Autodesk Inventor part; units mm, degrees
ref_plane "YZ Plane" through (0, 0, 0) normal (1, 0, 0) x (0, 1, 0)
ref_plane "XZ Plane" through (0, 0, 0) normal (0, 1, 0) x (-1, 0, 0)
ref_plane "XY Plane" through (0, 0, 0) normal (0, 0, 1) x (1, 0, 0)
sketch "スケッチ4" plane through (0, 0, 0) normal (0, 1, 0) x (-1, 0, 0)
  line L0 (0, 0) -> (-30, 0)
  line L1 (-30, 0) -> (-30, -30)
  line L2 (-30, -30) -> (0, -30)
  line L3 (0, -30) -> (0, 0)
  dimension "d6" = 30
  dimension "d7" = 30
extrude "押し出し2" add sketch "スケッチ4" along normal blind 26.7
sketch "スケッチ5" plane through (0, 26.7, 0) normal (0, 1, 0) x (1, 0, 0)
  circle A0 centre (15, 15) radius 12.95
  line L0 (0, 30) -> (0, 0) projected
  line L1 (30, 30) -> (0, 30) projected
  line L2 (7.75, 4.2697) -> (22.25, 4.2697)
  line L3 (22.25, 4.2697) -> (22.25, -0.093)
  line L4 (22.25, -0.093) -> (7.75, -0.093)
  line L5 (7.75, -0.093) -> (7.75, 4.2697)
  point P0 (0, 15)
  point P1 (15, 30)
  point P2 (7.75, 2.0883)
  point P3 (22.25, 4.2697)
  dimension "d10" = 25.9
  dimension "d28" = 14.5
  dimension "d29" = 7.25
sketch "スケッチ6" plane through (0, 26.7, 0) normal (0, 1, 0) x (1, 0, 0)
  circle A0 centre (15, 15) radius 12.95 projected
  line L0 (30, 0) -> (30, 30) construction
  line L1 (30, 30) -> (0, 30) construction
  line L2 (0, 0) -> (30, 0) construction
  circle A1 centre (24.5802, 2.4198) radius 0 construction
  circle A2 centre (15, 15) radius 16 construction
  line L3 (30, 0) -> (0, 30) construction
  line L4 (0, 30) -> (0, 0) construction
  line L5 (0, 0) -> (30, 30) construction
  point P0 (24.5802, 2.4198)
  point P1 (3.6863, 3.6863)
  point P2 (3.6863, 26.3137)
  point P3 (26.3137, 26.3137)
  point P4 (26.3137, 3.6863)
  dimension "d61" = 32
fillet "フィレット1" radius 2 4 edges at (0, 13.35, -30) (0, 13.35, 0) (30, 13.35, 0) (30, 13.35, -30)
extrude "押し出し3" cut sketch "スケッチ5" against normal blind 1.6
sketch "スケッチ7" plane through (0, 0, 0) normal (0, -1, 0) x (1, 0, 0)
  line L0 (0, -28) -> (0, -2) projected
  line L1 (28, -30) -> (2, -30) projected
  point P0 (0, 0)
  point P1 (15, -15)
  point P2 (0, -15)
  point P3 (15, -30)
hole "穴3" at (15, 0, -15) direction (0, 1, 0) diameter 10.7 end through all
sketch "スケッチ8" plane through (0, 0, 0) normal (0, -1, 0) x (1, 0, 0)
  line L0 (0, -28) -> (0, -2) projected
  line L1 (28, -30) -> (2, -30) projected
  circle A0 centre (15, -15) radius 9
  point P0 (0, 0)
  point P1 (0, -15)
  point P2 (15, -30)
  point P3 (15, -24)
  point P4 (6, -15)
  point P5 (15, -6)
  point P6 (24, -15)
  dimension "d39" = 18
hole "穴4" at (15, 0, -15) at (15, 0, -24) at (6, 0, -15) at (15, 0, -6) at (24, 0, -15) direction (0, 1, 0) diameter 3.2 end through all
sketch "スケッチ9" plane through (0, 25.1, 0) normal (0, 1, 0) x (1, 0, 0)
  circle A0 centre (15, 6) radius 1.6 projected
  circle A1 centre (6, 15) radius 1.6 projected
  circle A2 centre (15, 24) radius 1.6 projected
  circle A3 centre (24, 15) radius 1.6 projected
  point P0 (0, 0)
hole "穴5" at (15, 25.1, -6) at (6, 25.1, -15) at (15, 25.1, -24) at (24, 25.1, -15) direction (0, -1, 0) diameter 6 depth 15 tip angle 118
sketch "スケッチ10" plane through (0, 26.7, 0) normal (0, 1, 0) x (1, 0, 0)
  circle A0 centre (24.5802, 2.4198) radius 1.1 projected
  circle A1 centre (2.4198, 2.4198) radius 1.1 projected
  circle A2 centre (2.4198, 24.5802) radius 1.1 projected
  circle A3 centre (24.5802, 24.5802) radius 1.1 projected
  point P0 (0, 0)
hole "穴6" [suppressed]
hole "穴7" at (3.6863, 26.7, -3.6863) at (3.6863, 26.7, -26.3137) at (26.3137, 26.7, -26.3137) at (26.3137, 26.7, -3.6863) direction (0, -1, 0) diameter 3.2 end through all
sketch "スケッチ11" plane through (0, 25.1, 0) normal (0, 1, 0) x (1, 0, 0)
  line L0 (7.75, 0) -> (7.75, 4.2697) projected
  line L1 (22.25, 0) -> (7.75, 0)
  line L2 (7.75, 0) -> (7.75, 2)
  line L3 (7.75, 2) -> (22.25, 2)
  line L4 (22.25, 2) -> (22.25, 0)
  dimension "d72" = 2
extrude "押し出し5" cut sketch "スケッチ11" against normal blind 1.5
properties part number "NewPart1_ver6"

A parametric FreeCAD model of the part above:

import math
import FreeCAD as App
import Part
import Sketcher

V = App.Vector
Q = App.Units.Quantity


def edges_at(feature, points):
    """Names of the edges that pass closest to the given points."""
    edges = feature.Shape.Edges
    near = lambda p: min(range(len(edges)), key=lambda i: edges[i].distToShape(Part.Vertex(*p))[0])
    return sorted({f"Edge{near(p) + 1}" for p in points})

doc = App.newDocument("Part")
params = doc.addObject("Spreadsheet::Sheet", "Params")
for row, (alias, value) in enumerate([
    ("sketch1_width", "30 mm"),
    ("pad1_length", "26.7 mm"),
    ("fillet_radius", "2 mm"),
    ("sketch2_radius", "12.95 mm"),
    ("sketch2_width", "14.5 mm"),
    ("pocket1_length", "1.6 mm"),
    ("sketch3_diameter", "10.7 mm"),
    ("hole_diameter", "10.7 mm"),
    ("sketch4_diameter", "3.2 mm"),
    ("hole2_diameter", "3.2 mm"),
    ("sketch5_diameter", "6 mm"),
    ("hole3_diameter", "6 mm"),
    ("hole3_depth", "15 mm"),
    ("sketch6_diameter", "3.2 mm"),
    ("hole4_diameter", "3.2 mm"),
    ("sketch7_height", "2 mm"),
    ("sketch7_width", "14.5 mm"),
    ("pocket2_length", "1.5 mm"),
], start=1):
    params.set(f"A{row}", alias)
    params.set(f"B{row}", "=" + value)
    params.setAlias(f"B{row}", alias)

body = doc.addObject("PartDesign::Body", "Body")

# Sketch on XZ plane
sketch1 = doc.addObject("Sketcher::SketchObject", "Sketch")
body.addObject(sketch1)
sketch1.AttachmentSupport = (doc.XZ_Plane, [""])
sketch1.MapMode = "FlatFace"
sketch1.addGeometry(Part.LineSegment(V(0, -30, 0), V(0, 0, 0)), False)
sketch1.addGeometry(Part.LineSegment(V(0, 0, 0), V(30, 0, 0)), False)
sketch1.addGeometry(Part.LineSegment(V(30, 0, 0), V(30, -30, 0)), False)
sketch1.addGeometry(Part.LineSegment(V(30, -30, 0), V(0, -30, 0)), False)
sketch1.addConstraint(Sketcher.Constraint("Coincident", 0, 2, 1, 1))
sketch1.addConstraint(Sketcher.Constraint("Coincident", 1, 2, 2, 1))
sketch1.addConstraint(Sketcher.Constraint("Coincident", 2, 2, 3, 1))
sketch1.addConstraint(Sketcher.Constraint("Coincident", 3, 2, 0, 1))
sketch1.addConstraint(Sketcher.Constraint("Vertical", 0))
sketch1.addConstraint(Sketcher.Constraint("Horizontal", 1))
sketch1.addConstraint(Sketcher.Constraint("Vertical", 2))
sketch1.addConstraint(Sketcher.Constraint("Horizontal", 3))
sketch1.addConstraint(Sketcher.Constraint("Coincident", 0, 2, -1, 1))
sketch1.addConstraint(Sketcher.Constraint("Equal", 3, 0))
sketch1.addConstraint(Sketcher.Constraint("DistanceX", 1, 1, 1, 2, Q("30 mm")))
sketch1.setExpression("Constraints[10]", "Params.sketch1_width")
pad1 = doc.addObject("PartDesign::Pad", "Pad")
body.addObject(pad1)
pad1.Profile = sketch1
pad1.setExpression("Length", "Params.pad1_length")
pad1.Reversed = True
doc.recompute()

fillet = doc.addObject("PartDesign::Fillet", "Fillet")
body.addObject(fillet)
fillet.Base = (pad1, edges_at(pad1, [
    (0, 13.35, -30),
    (0, 13.35, 0),
    (30, 13.35, 0),
    (30, 13.35, -30),
]))
fillet.setExpression("Radius", "Params.fillet_radius")

# Sketch on XZ plane
sketch2 = doc.addObject("Sketcher::SketchObject", "Sketch001")
body.addObject(sketch2)
sketch2.AttachmentSupport = (doc.XZ_Plane, [""])
sketch2.MapMode = "FlatFace"
sketch2.AttachmentOffset = App.Placement(V(0, 0, -26.7), App.Rotation())
sketch2.addGeometry(Part.ArcOfCircle(Part.Circle(V(15, -15, 0), V(0, 0, 1), 12.9), math.radians(124), math.radians(416)), False)
sketch2.addGeometry(Part.LineSegment(V(7.8, -4.3, 0), V(7.8, 0.1, 0)), False)
sketch2.addGeometry(Part.LineSegment(V(7.8, 0.1, 0), V(22.2, 0.1, 0)), False)
sketch2.addGeometry(Part.LineSegment(V(22.2, 0.1, 0), V(22.2, -4.3, 0)), False)
sketch2.addConstraint(Sketcher.Constraint("Coincident", 0, 1, 1, 1))
sketch2.addConstraint(Sketcher.Constraint("Coincident", 1, 2, 2, 1))
sketch2.addConstraint(Sketcher.Constraint("Coincident", 2, 2, 3, 1))
sketch2.addConstraint(Sketcher.Constraint("Coincident", 3, 2, 0, 2))
sketch2.addConstraint(Sketcher.Constraint("Vertical", 1))
sketch2.addConstraint(Sketcher.Constraint("Horizontal", 2))
sketch2.addConstraint(Sketcher.Constraint("Vertical", 3))
sketch2.addConstraint(Sketcher.Constraint("Horizontal", 0, 1, 3, 2))
sketch2.addConstraint(Sketcher.Constraint("Radius", 0, Q("12.95 mm")))
sketch2.addConstraint(Sketcher.Constraint("DistanceX", 2, 1, 2, 2, Q("14.5 mm")))
sketch2.addConstraint(Sketcher.Constraint("DistanceX", -1, 1, 0, 3, Q("15 mm")))
sketch2.addConstraint(Sketcher.Constraint("DistanceY", 0, 3, -1, 1, Q("15 mm")))
sketch2.addConstraint(Sketcher.Constraint("DistanceY", 1, 1, 1, 2, Q("4.3627 mm")))
sketch2.setExpression("Constraints[8]", "Params.sketch2_radius")
sketch2.setExpression("Constraints[9]", "Params.sketch2_width")
pocket1 = doc.addObject("PartDesign::Pocket", "Pocket")
body.addObject(pocket1)
pocket1.Profile = sketch2
pocket1.setExpression("Length", "Params.pocket1_length")
pocket1.Reversed = True

# Sketch on XZ plane
sketch3 = doc.addObject("Sketcher::SketchObject", "Sketch002")
body.addObject(sketch3)
sketch3.AttachmentSupport = (doc.XZ_Plane, [""])
sketch3.MapMode = "FlatFace"
sketch3.addGeometry(Part.Circle(V(15, -15, 0), V(0, 0, 1), 5), False)
sketch3.addConstraint(Sketcher.Constraint("Diameter", 0, Q("10.7 mm")))
sketch3.addConstraint(Sketcher.Constraint("DistanceX", -1, 1, 0, 3, Q("15 mm")))
sketch3.addConstraint(Sketcher.Constraint("DistanceY", 0, 3, -1, 1, Q("15 mm")))
sketch3.setExpression("Constraints[0]", "Params.sketch3_diameter")
doc.recompute()
hole = doc.addObject("PartDesign::Hole", "Hole")
body.addObject(hole)
hole.Profile = sketch3
hole.ThreadType = "None"
hole.setExpression("Diameter", "Params.hole_diameter")
hole.DepthType = "ThroughAll"

# Sketch on XZ plane
sketch4 = doc.addObject("Sketcher::SketchObject", "Sketch003")
body.addObject(sketch4)
sketch4.AttachmentSupport = (doc.XZ_Plane, [""])
sketch4.MapMode = "FlatFace"
sketch4.addGeometry(Part.Circle(V(15, -15, 0), V(0, 0, 1), 1.6), False)
sketch4.addGeometry(Part.Circle(V(15, -24, 0), V(0, 0, 1), 1.6), False)
sketch4.addGeometry(Part.Circle(V(6, -15, 0), V(0, 0, 1), 1.6), False)
sketch4.addGeometry(Part.Circle(V(15, -6, 0), V(0, 0, 1), 1.6), False)
sketch4.addGeometry(Part.Circle(V(24, -15, 0), V(0, 0, 1), 1.6), False)
sketch4.addConstraint(Sketcher.Constraint("Equal", 0, 1))
sketch4.addConstraint(Sketcher.Constraint("Equal", 1, 2))
sketch4.addConstraint(Sketcher.Constraint("Equal", 2, 3))
sketch4.addConstraint(Sketcher.Constraint("Equal", 3, 4))
sketch4.addConstraint(Sketcher.Constraint("Horizontal", 0, 3, 2, 3))
sketch4.addConstraint(Sketcher.Constraint("Horizontal", 2, 3, 4, 3))
sketch4.addConstraint(Sketcher.Constraint("Vertical", 0, 3, 1, 3))
sketch4.addConstraint(Sketcher.Constraint("Vertical", 1, 3, 3, 3))
sketch4.addConstraint(Sketcher.Constraint("Diameter", 0, Q("3.2 mm")))
sketch4.addConstraint(Sketcher.Constraint("DistanceX", -1, 1, 0, 3, Q("15 mm")))
sketch4.addConstraint(Sketcher.Constraint("DistanceY", 0, 3, -1, 1, Q("15 mm")))
sketch4.addConstraint(Sketcher.Constraint("DistanceY", 1, 3, -1, 1, Q("24 mm")))
sketch4.addConstraint(Sketcher.Constraint("DistanceX", -1, 1, 2, 3, Q("6 mm")))
sketch4.addConstraint(Sketcher.Constraint("DistanceY", 3, 3, -1, 1, Q("6 mm")))
sketch4.addConstraint(Sketcher.Constraint("DistanceX", -1, 1, 4, 3, Q("24 mm")))
sketch4.setExpression("Constraints[8]", "Params.sketch4_diameter")
doc.recompute()
hole2 = doc.addObject("PartDesign::Hole", "Hole001")
body.addObject(hole2)
hole2.Profile = sketch4
hole2.ThreadType = "None"
hole2.setExpression("Diameter", "Params.hole2_diameter")
hole2.DepthType = "ThroughAll"

# Sketch on XZ plane
sketch5 = doc.addObject("Sketcher::SketchObject", "Sketch004")
body.addObject(sketch5)
sketch5.AttachmentSupport = (doc.XZ_Plane, [""])
sketch5.MapMode = "FlatFace"
sketch5.AttachmentOffset = App.Placement(V(0, 0, -25.1), App.Rotation())
sketch5.addGeometry(Part.Circle(V(15, -6, 0), V(0, 0, 1), 3), False)
sketch5.addGeometry(Part.Circle(V(6, -15, 0), V(0, 0, 1), 3), False)
sketch5.addGeometry(Part.Circle(V(15, -24, 0), V(0, 0, 1), 3), False)
sketch5.addGeometry(Part.Circle(V(24, -15, 0), V(0, 0, 1), 3), False)
sketch5.addConstraint(Sketcher.Constraint("Equal", 0, 1))
sketch5.addConstraint(Sketcher.Constraint("Equal", 1, 2))
sketch5.addConstraint(Sketcher.Constraint("Equal", 2, 3))
sketch5.addConstraint(Sketcher.Constraint("Horizontal", 1, 3, 3, 3))
sketch5.addConstraint(Sketcher.Constraint("Vertical", 0, 3, 2, 3))
sketch5.addConstraint(Sketcher.Constraint("Diameter", 0, Q("6 mm")))
sketch5.addConstraint(Sketcher.Constraint("DistanceX", -1, 1, 0, 3, Q("15 mm")))
sketch5.addConstraint(Sketcher.Constraint("DistanceY", 0, 3, -1, 1, Q("6 mm")))
sketch5.addConstraint(Sketcher.Constraint("DistanceX", -1, 1, 1, 3, Q("6 mm")))
sketch5.addConstraint(Sketcher.Constraint("DistanceY", 1, 3, -1, 1, Q("15 mm")))
sketch5.addConstraint(Sketcher.Constraint("DistanceY", 2, 3, -1, 1, Q("24 mm")))
sketch5.addConstraint(Sketcher.Constraint("DistanceX", -1, 1, 3, 3, Q("24 mm")))
sketch5.setExpression("Constraints[5]", "Params.sketch5_diameter")
doc.recompute()
hole3 = doc.addObject("PartDesign::Hole", "Hole002")
body.addObject(hole3)
hole3.Profile = sketch5
hole3.ThreadType = "None"
hole3.setExpression("Diameter", "Params.hole3_diameter")
hole3.DepthType = "Dimension"
hole3.setExpression("Depth", "Params.hole3_depth")
hole3.DrillPoint = "Angled"
hole3.DrillPointAngle = 118
hole3.Reversed = True

# Sketch on XZ plane
sketch6 = doc.addObject("Sketcher::SketchObject", "Sketch005")
body.addObject(sketch6)
sketch6.AttachmentSupport = (doc.XZ_Plane, [""])
sketch6.MapMode = "FlatFace"
sketch6.AttachmentOffset = App.Placement(V(0, 0, -26.7), App.Rotation())
sketch6.addGeometry(Part.Circle(V(3.7, -3.7, 0), V(0, 0, 1), 1.6), False)
sketch6.addGeometry(Part.Circle(V(3.7, -26.3, 0), V(0, 0, 1), 1.6), False)
sketch6.addGeometry(Part.Circle(V(26.3, -26.3, 0), V(0, 0, 1), 1.6), False)
sketch6.addGeometry(Part.Circle(V(26.3, -3.7, 0), V(0, 0, 1), 1.6), False)
sketch6.addConstraint(Sketcher.Constraint("Equal", 0, 1))
sketch6.addConstraint(Sketcher.Constraint("Equal", 1, 2))
sketch6.addConstraint(Sketcher.Constraint("Equal", 2, 3))
sketch6.addConstraint(Sketcher.Constraint("Horizontal", 1, 3, 2, 3))
sketch6.addConstraint(Sketcher.Constraint("Horizontal", 0, 3, 3, 3))
sketch6.addConstraint(Sketcher.Constraint("Vertical", 0, 3, 1, 3))
sketch6.addConstraint(Sketcher.Constraint("Vertical", 2, 3, 3, 3))
sketch6.addConstraint(Sketcher.Constraint("Diameter", 0, Q("3.2 mm")))
sketch6.addConstraint(Sketcher.Constraint("DistanceX", -1, 1, 0, 3, Q("3.6863 mm")))
sketch6.addConstraint(Sketcher.Constraint("DistanceY", 0, 3, -1, 1, Q("3.6863 mm")))
sketch6.addConstraint(Sketcher.Constraint("DistanceY", 1, 3, -1, 1, Q("26.3137 mm")))
sketch6.addConstraint(Sketcher.Constraint("DistanceX", -1, 1, 2, 3, Q("26.3137 mm")))
sketch6.setExpression("Constraints[7]", "Params.sketch6_diameter")
doc.recompute()
hole4 = doc.addObject("PartDesign::Hole", "Hole003")
body.addObject(hole4)
hole4.Profile = sketch6
hole4.ThreadType = "None"
hole4.setExpression("Diameter", "Params.hole4_diameter")
hole4.DepthType = "ThroughAll"
hole4.Reversed = True

# Sketch on XZ plane
sketch7 = doc.addObject("Sketcher::SketchObject", "Sketch006")
body.addObject(sketch7)
sketch7.AttachmentSupport = (doc.XZ_Plane, [""])
sketch7.MapMode = "FlatFace"
sketch7.AttachmentOffset = App.Placement(V(0, 0, -25.1), App.Rotation())
sketch7.addGeometry(Part.LineSegment(V(7.8, -2, 0), V(7.8, 0, 0)), False)
sketch7.addGeometry(Part.LineSegment(V(7.8, 0, 0), V(22.2, 0, 0)), False)
sketch7.addGeometry(Part.LineSegment(V(22.2, 0, 0), V(22.2, -2, 0)), False)
sketch7.addGeometry(Part.LineSegment(V(22.2, -2, 0), V(7.8, -2, 0)), False)
sketch7.addConstraint(Sketcher.Constraint("Coincident", 0, 2, 1, 1))
sketch7.addConstraint(Sketcher.Constraint("Coincident", 1, 2, 2, 1))
sketch7.addConstraint(Sketcher.Constraint("Coincident", 2, 2, 3, 1))
sketch7.addConstraint(Sketcher.Constraint("Coincident", 3, 2, 0, 1))
sketch7.addConstraint(Sketcher.Constraint("Vertical", 0))
sketch7.addConstraint(Sketcher.Constraint("Horizontal", 1))
sketch7.addConstraint(Sketcher.Constraint("Vertical", 2))
sketch7.addConstraint(Sketcher.Constraint("Horizontal", 3))
sketch7.addConstraint(Sketcher.Constraint("PointOnObject", 0, 2, -1))
sketch7.addConstraint(Sketcher.Constraint("DistanceY", 0, 1, 0, 2, Q("2 mm")))
sketch7.addConstraint(Sketcher.Constraint("DistanceX", 1, 1, 1, 2, Q("14.5 mm")))
sketch7.addConstraint(Sketcher.Constraint("DistanceX", -1, 1, 0, 2, Q("7.75 mm")))
sketch7.setExpression("Constraints[9]", "Params.sketch7_height")
sketch7.setExpression("Constraints[10]", "Params.sketch7_width")
pocket2 = doc.addObject("PartDesign::Pocket", "Pocket001")
body.addObject(pocket2)
pocket2.Profile = sketch7
pocket2.setExpression("Length", "Params.pocket2_length")
pocket2.Reversed = True

doc.recompute()
